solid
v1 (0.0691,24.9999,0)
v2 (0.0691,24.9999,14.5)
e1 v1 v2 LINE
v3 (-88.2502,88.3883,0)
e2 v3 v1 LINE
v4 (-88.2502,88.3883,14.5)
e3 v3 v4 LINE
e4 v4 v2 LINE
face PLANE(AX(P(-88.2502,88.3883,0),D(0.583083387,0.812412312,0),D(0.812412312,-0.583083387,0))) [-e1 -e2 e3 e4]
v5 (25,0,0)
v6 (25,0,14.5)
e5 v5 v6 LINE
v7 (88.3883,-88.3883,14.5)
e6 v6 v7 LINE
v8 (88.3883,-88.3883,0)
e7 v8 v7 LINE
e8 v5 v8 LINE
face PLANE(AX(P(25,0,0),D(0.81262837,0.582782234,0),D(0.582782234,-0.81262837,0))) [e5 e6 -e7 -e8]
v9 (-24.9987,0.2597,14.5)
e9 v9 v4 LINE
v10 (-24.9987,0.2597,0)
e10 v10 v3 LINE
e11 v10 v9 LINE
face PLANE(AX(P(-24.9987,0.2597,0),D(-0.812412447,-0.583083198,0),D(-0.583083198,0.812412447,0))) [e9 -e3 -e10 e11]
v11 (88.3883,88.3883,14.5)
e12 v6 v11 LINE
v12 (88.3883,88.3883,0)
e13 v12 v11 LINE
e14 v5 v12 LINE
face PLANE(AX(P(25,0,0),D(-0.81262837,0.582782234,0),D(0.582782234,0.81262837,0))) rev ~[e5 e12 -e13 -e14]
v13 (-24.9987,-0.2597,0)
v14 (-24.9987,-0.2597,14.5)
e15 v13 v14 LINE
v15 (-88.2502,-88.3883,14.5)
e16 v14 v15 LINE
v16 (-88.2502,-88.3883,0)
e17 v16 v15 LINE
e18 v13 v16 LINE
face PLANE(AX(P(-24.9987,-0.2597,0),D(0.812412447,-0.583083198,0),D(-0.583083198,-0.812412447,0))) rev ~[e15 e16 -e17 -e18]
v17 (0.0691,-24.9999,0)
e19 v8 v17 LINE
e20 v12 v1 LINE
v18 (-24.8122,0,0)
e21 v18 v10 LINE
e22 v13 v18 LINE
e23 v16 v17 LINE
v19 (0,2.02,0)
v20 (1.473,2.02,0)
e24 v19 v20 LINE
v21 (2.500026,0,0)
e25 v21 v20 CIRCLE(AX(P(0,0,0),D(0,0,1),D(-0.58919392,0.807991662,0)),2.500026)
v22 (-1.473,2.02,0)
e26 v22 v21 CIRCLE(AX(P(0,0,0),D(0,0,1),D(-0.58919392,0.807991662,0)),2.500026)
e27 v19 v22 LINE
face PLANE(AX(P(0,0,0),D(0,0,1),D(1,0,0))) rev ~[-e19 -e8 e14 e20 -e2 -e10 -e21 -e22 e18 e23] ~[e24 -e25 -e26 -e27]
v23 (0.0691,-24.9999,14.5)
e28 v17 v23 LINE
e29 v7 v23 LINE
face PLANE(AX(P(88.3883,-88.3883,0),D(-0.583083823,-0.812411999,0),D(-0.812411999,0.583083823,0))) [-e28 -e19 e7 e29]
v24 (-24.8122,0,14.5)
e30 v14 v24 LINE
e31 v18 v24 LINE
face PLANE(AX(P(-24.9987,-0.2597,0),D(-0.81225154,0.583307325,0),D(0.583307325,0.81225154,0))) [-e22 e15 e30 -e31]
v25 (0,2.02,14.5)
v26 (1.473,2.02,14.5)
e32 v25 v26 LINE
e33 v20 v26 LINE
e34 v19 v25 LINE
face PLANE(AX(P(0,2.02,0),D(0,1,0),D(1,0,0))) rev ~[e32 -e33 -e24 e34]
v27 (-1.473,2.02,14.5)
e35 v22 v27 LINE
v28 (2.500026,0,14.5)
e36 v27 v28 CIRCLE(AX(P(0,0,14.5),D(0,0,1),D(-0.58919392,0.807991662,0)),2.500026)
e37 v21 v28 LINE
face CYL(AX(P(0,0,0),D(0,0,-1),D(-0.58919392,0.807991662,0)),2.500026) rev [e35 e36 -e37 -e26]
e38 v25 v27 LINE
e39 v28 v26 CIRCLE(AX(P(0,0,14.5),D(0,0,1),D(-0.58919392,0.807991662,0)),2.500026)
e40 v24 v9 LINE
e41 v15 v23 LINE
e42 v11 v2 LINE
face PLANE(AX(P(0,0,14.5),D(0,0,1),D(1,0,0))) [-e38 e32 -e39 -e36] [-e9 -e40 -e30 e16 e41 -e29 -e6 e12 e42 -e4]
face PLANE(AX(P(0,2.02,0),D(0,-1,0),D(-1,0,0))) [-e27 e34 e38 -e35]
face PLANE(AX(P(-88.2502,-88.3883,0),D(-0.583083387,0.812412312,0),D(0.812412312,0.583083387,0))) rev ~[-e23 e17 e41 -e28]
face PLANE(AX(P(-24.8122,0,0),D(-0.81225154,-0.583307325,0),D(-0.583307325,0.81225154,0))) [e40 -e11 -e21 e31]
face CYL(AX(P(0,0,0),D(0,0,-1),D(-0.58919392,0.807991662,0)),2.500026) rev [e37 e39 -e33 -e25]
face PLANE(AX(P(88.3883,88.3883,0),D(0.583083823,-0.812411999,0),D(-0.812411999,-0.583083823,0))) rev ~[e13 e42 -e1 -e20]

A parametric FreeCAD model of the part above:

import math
import FreeCAD as App
import Part
import Sketcher

V = App.Vector


def add_polygon(sketch, points):
    """Adds a closed chain of lines whose ends are joined by coincident constraints."""
    first, n = sketch.GeometryCount, len(points)
    for a, b in zip(points, points[1:] + points[:1]):
        sketch.addGeometry(Part.LineSegment(App.Vector(*a, 0), App.Vector(*b, 0)), False)
    for i in range(n):
        sketch.addConstraint(Sketcher.Constraint("Coincident", first + i, 2, first + (i + 1) % n, 1))

doc = App.newDocument("Part")
params = doc.addObject("Spreadsheet::Sheet", "Params")
for row, (alias, value) in enumerate([
    ("sketch1_radius", "2.5 mm"),
    ("pad1_length", "14.5 mm"),
], start=1):
    params.set(f"A{row}", alias)
    params.set(f"B{row}", "=" + value)
    params.setAlias(f"B{row}", alias)

body = doc.addObject("PartDesign::Body", "Body")

sketch1 = body.newObject("Sketcher::SketchObject", "Sketch")
sketch1.AttachmentSupport = (doc.getObject("XY_Plane"), [""])
sketch1.MapMode = "FlatFace"
add_polygon(sketch1, [(25, 0), (88.3883, 88.3883), (0.0691, 24.9999), (-88.2502, 88.3883), (-24.9987, 0.2597), (-24.8122, 0), (-24.9987, -0.2597), (-88.2502, -88.3883), (0.0691, -24.9999), (88.3883, -88.3883)])
sketch1.addGeometry(Part.ArcOfCircle(Part.Circle(V(0, 0, 0), V(0, 0, 1), 2.500026), math.radians(126.099827), math.radians(413.900173)), False)
sketch1.addGeometry(Part.LineSegment(V(-1.473, 2.02, 0), V(1.473, 2.02, 0)), False)
sketch1.addConstraint([
    Sketcher.Constraint("Coincident", 10, 1, 11, 1),
    Sketcher.Constraint("Coincident", 11, 2, 10, 2),
    Sketcher.Constraint("Horizontal", 11),
    Sketcher.Constraint("Coincident", 10, 3, -1, 1),
    Sketcher.Constraint("PointOnObject", 4, 2, -1),
    Sketcher.Constraint("PointOnObject", 9, 2, -1),
    Sketcher.Constraint("Radius", 10, 2.5),
    Sketcher.Constraint("DistanceY", -1, 1, 1, 2, 25.0),
    Sketcher.Constraint("DistanceY", 7, 2, -1, 1, 25.0),
    Sketcher.Constraint("DistanceX", -1, 1, 9, 2, 25.0),
    Sketcher.Constraint("DistanceX", 11, 1, 11, 2, 2.946),
    Sketcher.Constraint("DistanceX", -1, 1, 1, 2, 0.069),
    Sketcher.Constraint("DistanceX", -1, 1, 7, 2, 0.069),
    Sketcher.Constraint("DistanceX", 3, 2, 0, 2, 113.387),
    Sketcher.Constraint("DistanceX", 2, 2, 4, 2, 63.438),
    Sketcher.Constraint("DistanceY", 5, 2, 2, 2, 88.648),
    Sketcher.Constraint("DistanceX", 6, 2, 4, 2, 63.438),
    Sketcher.Constraint("DistanceY", 6, 2, 3, 2, 88.648),
    Sketcher.Constraint("DistanceX", 5, 2, 8, 2, 113.387),
    Sketcher.Constraint("Distance", 0, 108.7684),
    Sketcher.Constraint("Distance", 1, 108.7123),
    Sketcher.Constraint("Distance", 2, 108.7124),
    Sketcher.Constraint("Distance", 3, 108.4777),
    Sketcher.Constraint("Distance", 4, 0.3197),
    Sketcher.Constraint("Distance", 5, 0.3197),
    Sketcher.Constraint("Distance", 8, 108.7123),
])
sketch1.setExpression("Constraints[16]", "Params.sketch1_radius")
pad1 = body.newObject("PartDesign::Pad", "Pad")
pad1.Profile = sketch1
pad1.setExpression("Length", "Params.pad1_length")

doc.recompute()
